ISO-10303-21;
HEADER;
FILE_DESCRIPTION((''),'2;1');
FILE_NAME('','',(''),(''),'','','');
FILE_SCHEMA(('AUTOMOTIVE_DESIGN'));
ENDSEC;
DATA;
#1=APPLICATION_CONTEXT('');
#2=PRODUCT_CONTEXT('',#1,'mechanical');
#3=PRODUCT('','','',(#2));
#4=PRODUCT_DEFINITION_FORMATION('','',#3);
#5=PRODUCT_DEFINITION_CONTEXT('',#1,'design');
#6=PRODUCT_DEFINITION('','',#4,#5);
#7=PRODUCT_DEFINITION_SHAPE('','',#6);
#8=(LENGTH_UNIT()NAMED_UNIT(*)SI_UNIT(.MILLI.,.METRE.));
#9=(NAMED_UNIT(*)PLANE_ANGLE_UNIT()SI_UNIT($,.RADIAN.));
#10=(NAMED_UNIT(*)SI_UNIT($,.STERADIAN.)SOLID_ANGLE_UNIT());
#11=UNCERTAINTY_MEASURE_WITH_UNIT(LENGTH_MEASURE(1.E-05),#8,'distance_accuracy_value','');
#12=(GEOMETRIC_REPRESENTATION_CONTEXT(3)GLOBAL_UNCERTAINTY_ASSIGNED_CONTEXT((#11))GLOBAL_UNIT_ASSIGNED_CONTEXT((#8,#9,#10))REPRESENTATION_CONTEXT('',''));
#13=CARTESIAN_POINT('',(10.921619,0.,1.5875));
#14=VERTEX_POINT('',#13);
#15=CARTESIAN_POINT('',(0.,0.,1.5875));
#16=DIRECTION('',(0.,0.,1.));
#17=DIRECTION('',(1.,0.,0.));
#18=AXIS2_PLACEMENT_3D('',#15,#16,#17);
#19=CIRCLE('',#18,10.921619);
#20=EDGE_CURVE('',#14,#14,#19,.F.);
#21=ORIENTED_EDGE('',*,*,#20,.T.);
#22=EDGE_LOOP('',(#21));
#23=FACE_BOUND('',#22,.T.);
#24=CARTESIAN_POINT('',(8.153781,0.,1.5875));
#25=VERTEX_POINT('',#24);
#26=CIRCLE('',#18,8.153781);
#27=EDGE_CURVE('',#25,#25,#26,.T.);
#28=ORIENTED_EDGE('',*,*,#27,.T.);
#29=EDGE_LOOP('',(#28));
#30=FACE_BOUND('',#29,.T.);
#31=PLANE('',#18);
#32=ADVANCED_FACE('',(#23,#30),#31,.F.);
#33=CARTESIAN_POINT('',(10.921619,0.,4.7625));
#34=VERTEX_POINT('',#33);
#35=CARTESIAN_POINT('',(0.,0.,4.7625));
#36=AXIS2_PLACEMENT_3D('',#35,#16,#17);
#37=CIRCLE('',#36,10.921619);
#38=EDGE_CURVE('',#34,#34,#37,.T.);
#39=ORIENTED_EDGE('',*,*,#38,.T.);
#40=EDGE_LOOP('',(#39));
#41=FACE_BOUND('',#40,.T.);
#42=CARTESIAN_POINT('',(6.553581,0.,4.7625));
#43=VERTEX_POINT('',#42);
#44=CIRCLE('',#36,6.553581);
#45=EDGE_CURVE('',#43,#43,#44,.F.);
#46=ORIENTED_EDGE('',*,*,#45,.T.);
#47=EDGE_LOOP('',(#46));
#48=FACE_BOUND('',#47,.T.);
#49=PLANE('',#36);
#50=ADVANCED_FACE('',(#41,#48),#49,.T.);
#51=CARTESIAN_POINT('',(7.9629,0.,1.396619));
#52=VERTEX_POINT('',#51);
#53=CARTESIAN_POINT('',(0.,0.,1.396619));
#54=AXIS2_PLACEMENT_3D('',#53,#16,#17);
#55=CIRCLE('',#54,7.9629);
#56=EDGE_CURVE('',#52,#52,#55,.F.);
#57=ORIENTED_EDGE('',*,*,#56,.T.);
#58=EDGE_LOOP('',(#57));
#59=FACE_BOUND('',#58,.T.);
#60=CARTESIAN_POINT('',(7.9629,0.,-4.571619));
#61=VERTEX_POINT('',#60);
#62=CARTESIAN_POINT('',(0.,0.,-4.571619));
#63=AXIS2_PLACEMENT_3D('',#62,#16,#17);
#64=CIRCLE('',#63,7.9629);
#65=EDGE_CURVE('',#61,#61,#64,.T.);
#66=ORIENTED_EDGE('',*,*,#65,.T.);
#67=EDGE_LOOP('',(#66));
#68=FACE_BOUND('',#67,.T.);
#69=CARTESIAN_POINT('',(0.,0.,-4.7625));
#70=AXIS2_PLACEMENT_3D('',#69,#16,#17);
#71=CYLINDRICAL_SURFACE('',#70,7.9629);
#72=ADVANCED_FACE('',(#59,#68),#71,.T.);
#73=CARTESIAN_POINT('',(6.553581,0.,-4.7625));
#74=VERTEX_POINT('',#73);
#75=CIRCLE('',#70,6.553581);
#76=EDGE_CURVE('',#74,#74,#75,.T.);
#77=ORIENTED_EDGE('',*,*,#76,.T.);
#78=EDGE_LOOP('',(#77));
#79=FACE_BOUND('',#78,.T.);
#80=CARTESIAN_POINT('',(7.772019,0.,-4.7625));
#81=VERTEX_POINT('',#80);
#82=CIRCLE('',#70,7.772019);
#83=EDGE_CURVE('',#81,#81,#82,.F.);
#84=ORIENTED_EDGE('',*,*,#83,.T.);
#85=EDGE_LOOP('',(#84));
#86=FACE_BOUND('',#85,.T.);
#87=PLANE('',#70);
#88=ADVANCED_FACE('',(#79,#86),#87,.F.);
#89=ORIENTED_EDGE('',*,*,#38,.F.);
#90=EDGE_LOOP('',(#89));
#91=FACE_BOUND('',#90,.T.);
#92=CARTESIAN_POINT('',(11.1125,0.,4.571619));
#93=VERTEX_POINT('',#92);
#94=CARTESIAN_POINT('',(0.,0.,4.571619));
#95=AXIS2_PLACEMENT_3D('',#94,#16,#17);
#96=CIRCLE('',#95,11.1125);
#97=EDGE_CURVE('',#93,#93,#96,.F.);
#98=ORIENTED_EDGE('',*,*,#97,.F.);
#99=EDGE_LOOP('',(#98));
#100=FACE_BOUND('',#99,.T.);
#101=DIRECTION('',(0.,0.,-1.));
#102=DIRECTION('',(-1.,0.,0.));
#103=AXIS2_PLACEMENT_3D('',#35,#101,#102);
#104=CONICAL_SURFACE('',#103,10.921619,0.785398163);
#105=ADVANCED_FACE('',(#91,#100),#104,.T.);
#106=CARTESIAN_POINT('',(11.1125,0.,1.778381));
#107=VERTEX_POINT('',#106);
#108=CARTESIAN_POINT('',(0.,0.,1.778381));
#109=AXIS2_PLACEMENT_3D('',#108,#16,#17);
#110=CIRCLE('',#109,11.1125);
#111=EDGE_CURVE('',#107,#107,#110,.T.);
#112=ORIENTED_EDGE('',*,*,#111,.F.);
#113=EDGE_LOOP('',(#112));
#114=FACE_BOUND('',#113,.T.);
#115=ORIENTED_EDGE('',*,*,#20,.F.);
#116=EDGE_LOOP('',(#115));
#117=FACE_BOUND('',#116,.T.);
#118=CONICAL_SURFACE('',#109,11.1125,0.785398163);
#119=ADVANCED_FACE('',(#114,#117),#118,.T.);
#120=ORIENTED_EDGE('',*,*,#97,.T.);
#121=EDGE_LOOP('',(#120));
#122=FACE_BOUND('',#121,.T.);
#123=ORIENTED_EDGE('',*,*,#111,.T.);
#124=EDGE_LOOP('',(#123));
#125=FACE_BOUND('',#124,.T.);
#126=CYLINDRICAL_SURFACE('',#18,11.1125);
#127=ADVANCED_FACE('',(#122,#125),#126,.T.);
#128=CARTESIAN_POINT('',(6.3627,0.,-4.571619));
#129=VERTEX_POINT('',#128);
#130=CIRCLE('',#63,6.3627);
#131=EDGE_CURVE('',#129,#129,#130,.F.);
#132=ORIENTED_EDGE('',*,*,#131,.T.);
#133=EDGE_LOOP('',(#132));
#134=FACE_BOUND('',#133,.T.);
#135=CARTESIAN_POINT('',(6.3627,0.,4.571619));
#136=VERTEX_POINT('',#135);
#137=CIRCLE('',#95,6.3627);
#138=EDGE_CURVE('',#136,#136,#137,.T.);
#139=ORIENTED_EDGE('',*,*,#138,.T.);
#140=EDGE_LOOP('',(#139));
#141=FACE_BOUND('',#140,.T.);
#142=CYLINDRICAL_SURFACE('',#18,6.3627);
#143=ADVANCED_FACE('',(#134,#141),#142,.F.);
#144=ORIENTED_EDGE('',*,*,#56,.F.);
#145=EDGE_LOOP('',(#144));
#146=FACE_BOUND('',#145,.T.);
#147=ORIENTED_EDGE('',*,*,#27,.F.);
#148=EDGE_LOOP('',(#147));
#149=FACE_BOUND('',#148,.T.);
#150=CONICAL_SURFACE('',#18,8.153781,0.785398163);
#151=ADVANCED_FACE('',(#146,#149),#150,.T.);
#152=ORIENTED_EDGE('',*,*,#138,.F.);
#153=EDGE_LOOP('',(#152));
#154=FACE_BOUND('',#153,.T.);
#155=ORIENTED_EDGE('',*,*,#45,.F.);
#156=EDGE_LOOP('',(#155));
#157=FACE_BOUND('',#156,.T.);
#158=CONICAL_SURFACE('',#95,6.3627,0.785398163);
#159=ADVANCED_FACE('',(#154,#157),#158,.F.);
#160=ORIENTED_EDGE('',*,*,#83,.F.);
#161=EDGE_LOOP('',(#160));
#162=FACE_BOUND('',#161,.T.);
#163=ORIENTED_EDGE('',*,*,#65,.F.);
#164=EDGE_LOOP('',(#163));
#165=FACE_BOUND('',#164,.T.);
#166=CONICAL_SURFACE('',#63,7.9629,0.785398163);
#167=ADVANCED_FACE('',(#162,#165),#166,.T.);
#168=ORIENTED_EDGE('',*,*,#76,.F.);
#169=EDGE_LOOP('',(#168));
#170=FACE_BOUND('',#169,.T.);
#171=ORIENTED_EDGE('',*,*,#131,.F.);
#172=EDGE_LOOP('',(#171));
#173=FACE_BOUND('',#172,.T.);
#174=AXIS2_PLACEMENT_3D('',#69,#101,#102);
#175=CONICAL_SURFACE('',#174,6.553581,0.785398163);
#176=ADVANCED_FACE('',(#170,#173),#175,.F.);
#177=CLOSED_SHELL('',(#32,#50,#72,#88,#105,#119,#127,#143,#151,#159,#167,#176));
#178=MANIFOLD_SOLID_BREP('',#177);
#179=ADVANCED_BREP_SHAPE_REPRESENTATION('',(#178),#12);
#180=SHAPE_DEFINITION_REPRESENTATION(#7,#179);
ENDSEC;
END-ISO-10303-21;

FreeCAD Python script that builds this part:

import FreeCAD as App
import Part
import Sketcher
Q = App.Units.Quantity


def edges_at(feature, points):
    """Names of the edges that pass closest to the given points."""
    edges = feature.Shape.Edges
    near = lambda p: min(range(len(edges)), key=lambda i: edges[i].distToShape(Part.Vertex(*p))[0])
    return sorted({f"Edge{near(p) + 1}" for p in points})

doc = App.newDocument("Part")
body = doc.addObject("PartDesign::Body", "Body")

# Sketch on XY plane
sketch1 = body.newObject("Sketcher::SketchObject", "Sketch")
sketch1.AttachmentSupport = (doc.getObject("XY_Plane"), [""])
sketch1.MapMode = "FlatFace"
sketch1.AttachmentOffset = App.Placement(App.Vector(0, 0, 0.1875 * 25.4), App.Rotation())
sketch1.addGeometry([
    Part.Circle(App.Vector(0, 0, 0), App.Vector(0, 0, 1), 11.1125),
    Part.Circle(App.Vector(0, 0, 0), App.Vector(0, 0, 1), 6.3627),
], False)
sketch1.addConstraint([
    Sketcher.Constraint("Coincident", 0, 3, -1, 1),
    Sketcher.Constraint("Coincident", 1, 3, -1, 1),
    Sketcher.Constraint("Diameter", 0, Q("0.875 in")),
    Sketcher.Constraint("Diameter", 1, Q("0.501 in")),
])
pad1 = body.newObject("PartDesign::Pad", "Pad")
pad1.Profile = sketch1
pad1.Length = Q("0.125 in")
pad1.Reversed = True

# Sketch on XY plane
sketch2 = body.newObject("Sketcher::SketchObject", "Sketch001")
sketch2.AttachmentSupport = (doc.getObject("XY_Plane"), [""])
sketch2.MapMode = "FlatFace"
sketch2.AttachmentOffset = App.Placement(App.Vector(0, 0, 0.0625 * 25.4), App.Rotation())
sketch2.addGeometry([
    Part.Circle(App.Vector(0, 0, 0), App.Vector(0, 0, 1), 7.9629),
    Part.Circle(App.Vector(0, 0, 0), App.Vector(0, 0, 1), 6.3627),
], False)
sketch2.addConstraint([
    Sketcher.Constraint("Coincident", 0, 3, -1, 1),
    Sketcher.Constraint("Coincident", 1, 3, -1, 1),
    Sketcher.Constraint("Diameter", 0, Q("0.627 in")),
    Sketcher.Constraint("Diameter", 1, Q("0.501 in")),
])
pad2 = body.newObject("PartDesign::Pad", "Pad001")
pad2.Profile = sketch2
pad2.Length = Q("0.25 in")
pad2.Reversed = True
doc.recompute()

chamfer = body.newObject("PartDesign::Chamfer", "Chamfer")
chamfer.Base = (pad2, edges_at(pad2, [
    (-6.363, 0, -4.763),
    (-7.963, 0, 1.587),
    (-11.113, 0, 4.763),
    (-11.113, 0, 1.587),
    (-6.363, 0, 4.763),
    (-7.963, 0, -4.763),
]))
chamfer.Size = 0.190881

doc.recompute()
